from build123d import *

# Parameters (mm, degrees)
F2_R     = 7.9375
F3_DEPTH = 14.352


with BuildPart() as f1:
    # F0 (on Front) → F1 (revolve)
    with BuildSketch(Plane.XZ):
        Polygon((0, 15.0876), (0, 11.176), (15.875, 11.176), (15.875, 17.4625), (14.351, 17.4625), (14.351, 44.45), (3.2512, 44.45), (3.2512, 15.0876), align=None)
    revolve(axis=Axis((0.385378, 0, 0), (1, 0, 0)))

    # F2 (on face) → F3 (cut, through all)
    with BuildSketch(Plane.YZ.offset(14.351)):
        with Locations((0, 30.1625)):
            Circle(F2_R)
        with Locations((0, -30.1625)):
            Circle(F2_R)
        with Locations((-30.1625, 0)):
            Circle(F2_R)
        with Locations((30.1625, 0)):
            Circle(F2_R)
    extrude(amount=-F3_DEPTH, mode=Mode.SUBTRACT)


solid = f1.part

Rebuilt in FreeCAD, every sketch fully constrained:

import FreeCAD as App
import Part
import Sketcher
from FreeCAD import Vector
Q = App.Units.Quantity


def add_polygon(sketch, points):
    """Adds a closed chain of lines whose ends are joined by coincident constraints."""
    first, n = sketch.GeometryCount, len(points)
    for a, b in zip(points, points[1:] + points[:1]):
        sketch.addGeometry(Part.LineSegment(App.Vector(*a, 0), App.Vector(*b, 0)), False)
    for i in range(n):
        sketch.addConstraint(Sketcher.Constraint("Coincident", first + i, 2, first + (i + 1) % n, 1))

doc = App.newDocument("Part")
body = doc.addObject("PartDesign::Body", "Body")

# Sketch on XZ plane
sketch1 = body.newObject("Sketcher::SketchObject", "Sketch")
sketch1.AttachmentSupport = (doc.getObject("XZ_Plane"), [""])
sketch1.MapMode = "FlatFace"
add_polygon(sketch1, [(0, 15.0876), (0, 11.176), (15.875, 11.176), (15.875, 17.4625), (14.351, 17.4625), (14.351, 44.45), (3.2512, 44.45), (3.2512, 15.0876)])  # lines 0-7
sketch1.addConstraint([
    Sketcher.Constraint("Vertical", 0),
    Sketcher.Constraint("Horizontal", 1),
    Sketcher.Constraint("Vertical", 2),
    Sketcher.Constraint("Horizontal", 3),
    Sketcher.Constraint("Vertical", 4),
    Sketcher.Constraint("Horizontal", 5),
    Sketcher.Constraint("Vertical", 6),
    Sketcher.Constraint("Horizontal", 7),
    Sketcher.Constraint("PointOnObject", 0, 2, -2),
    Sketcher.Constraint("DistanceX", 3, 2, 3, 1, Q("0.06 in")),
    Sketcher.Constraint("DistanceX", 1, 1, 1, 2, Q("0.625 in")),
    Sketcher.Constraint("DistanceX", 5, 2, 5, 1, Q("0.437 in")),
    Sketcher.Constraint("DistanceY", 0, 2, 0, 1, Q("0.154 in")),
    Sketcher.Constraint("DistanceY", 4, 1, 4, 2, Q("1.0625 in")),
    Sketcher.Constraint("DistanceY", 6, 2, 6, 1, Q("1.156 in")),
    Sketcher.Constraint("DistanceY", -1, 1, 0, 2, Q("0.44 in")),
])
revolution = body.newObject("PartDesign::Revolution", "Revolution")
revolution.Profile = sketch1
revolution.ReferenceAxis = (sketch1, ["H_Axis"])
revolution.Angle = 360

# Sketch on YZ plane
sketch2 = body.newObject("Sketcher::SketchObject", "Sketch001")
sketch2.AttachmentSupport = (doc.getObject("YZ_Plane"), [""])
sketch2.MapMode = "FlatFace"
sketch2.AttachmentOffset = App.Placement(Vector(0, 0, 0.565 * 25.4), App.Rotation())
sketch2.addGeometry([
    Part.Circle(Vector(0, 30.1625, 0), Vector(0, 0, 1), 7.9375),
    Part.Circle(Vector(0, -30.1625, 0), Vector(0, 0, 1), 7.9375),
    Part.Circle(Vector(-30.1625, 0, 0), Vector(0, 0, 1), 7.9375),
    Part.Circle(Vector(30.1625, 0, 0), Vector(0, 0, 1), 7.9375),
], False)
sketch2.addConstraint([
    Sketcher.Constraint("Equal", 0, 1),
    Sketcher.Constraint("Equal", 1, 2),
    Sketcher.Constraint("Equal", 2, 3),
    Sketcher.Constraint("Symmetric", 0, 3, 1, 3, -1, 1),
    Sketcher.Constraint("Symmetric", 2, 3, 3, 3, -1, 1),
    Sketcher.Constraint("PointOnObject", 0, 3, -2),
    Sketcher.Constraint("PointOnObject", 2, 3, -1),
    Sketcher.Constraint("Diameter", 0, Q("0.625 in")),
    Sketcher.Constraint("DistanceY", -1, 1, 0, 3, Q("1.1875 in")),
    Sketcher.Constraint("DistanceX", 2, 3, -1, 1, Q("1.1875 in")),
])
pocket1 = body.newObject("PartDesign::Pocket", "Pocket")
pocket1.Profile = sketch2
pocket1.Type = "ThroughAll"

doc.recompute()
